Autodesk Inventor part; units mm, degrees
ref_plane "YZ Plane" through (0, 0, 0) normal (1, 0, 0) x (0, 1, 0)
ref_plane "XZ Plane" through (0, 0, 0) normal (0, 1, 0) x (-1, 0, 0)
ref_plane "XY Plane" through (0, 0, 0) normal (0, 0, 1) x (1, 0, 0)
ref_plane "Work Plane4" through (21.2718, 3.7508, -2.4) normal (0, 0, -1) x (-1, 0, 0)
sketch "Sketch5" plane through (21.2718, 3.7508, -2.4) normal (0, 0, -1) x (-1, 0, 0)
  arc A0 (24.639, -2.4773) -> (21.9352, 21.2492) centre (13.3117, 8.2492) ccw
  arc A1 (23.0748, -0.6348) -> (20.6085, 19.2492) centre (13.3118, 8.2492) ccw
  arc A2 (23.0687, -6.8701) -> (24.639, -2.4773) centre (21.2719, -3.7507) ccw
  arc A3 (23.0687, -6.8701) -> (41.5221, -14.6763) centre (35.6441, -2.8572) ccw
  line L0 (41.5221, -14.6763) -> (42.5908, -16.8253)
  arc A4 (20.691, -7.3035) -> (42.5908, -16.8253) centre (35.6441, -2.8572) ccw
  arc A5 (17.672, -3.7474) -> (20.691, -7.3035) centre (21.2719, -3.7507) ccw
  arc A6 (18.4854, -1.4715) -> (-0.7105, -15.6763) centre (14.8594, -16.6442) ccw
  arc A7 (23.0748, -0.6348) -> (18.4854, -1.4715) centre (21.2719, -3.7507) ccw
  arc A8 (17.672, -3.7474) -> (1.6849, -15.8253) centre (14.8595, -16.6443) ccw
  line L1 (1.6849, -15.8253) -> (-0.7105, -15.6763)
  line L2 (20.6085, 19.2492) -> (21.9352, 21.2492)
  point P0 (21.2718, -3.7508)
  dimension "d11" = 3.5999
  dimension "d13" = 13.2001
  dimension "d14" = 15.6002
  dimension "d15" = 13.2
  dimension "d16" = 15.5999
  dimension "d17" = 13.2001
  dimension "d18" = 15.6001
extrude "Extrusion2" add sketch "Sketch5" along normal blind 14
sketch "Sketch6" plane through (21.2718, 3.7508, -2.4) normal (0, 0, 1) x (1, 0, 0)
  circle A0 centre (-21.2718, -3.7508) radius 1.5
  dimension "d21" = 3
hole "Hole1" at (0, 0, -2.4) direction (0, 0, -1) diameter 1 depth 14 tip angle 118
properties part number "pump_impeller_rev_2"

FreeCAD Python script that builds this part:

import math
import FreeCAD as App
import Part
import Sketcher
from FreeCAD import Vector
Q = App.Units.Quantity

doc = App.newDocument("Part")
params = doc.addObject("Spreadsheet::Sheet", "Params")
for row, (alias, value) in enumerate([
    ("sketch1_radius", "3.6 mm"),
    ("sketch1_radius2", "13.2 mm"),
    ("sketch1_radius3", "15.6 mm"),
    ("sketch1_width", "15.57 mm"),
    ("pad1_length", "14 mm"),
    ("sketch2_diameter", "1 mm"),
    ("hole_diameter", "1 mm"),
    ("hole_depth", "14 mm"),
], start=1):
    params.set(f"A{row}", alias)
    params.set(f"B{row}", "=" + value)
    params.setAlias(f"B{row}", alias)

body = doc.addObject("PartDesign::Body", "Body")

# Sketch on XY plane
sketch1 = body.newObject("Sketcher::SketchObject", "Sketch")
sketch1.AttachmentSupport = (doc.getObject("XY_Plane"), [""])
sketch1.MapMode = "FlatFace"
sketch1.AttachmentOffset = App.Placement(Vector(0, 0, -2.4), App.Rotation())
sketch1.addGeometry([
    Part.ArcOfCircle(Part.Circle(Vector(0, 0, 0), Vector(0, 0, 1), 3.6), math.radians(159), math.radians(240)),  # 0
    Part.ArcOfCircle(Part.Circle(Vector(8, 12, 0), Vector(0, 0, 1), 15.6), math.radians(124), math.radians(223)),  # 1
    Part.LineSegment(Vector(-0.7, 25, 0), Vector(0.7, 23, 0)),  # 2
    Part.ArcOfCircle(Part.Circle(Vector(8, 12, 0), Vector(0, 0, 1), 13.2), math.radians(124), math.radians(222)),  # 3
    Part.ArcOfCircle(Part.Circle(Vector(0, 0, 0), Vector(0, 0, 1), 3.6), math.radians(39), math.radians(120)),  # 4
    Part.ArcOfCircle(Part.Circle(Vector(6.4, -12.9, 0), Vector(0, 0, 1), 15.6), math.radians(4), math.radians(103)),  # 5
    Part.LineSegment(Vector(22, -11.9, 0), Vector(19.6, -12.1, 0)),  # 6
    Part.ArcOfCircle(Part.Circle(Vector(6.4, -12.9, 0), Vector(0, 0, 1), 13.2), math.radians(4), math.radians(102)),  # 7
    Part.ArcOfCircle(Part.Circle(Vector(0, 0, 0), Vector(0, 0, 1), 3.6), math.radians(-81), math.radians(0)),  # 8
    Part.ArcOfCircle(Part.Circle(Vector(-14.4, 0.9, 0), Vector(0, 0, 1), 15.6), math.radians(-116), math.radians(-17)),  # 9
    Part.LineSegment(Vector(-21.3, -13.1, 0), Vector(-20.3, -10.9, 0)),  # 10
    Part.ArcOfCircle(Part.Circle(Vector(-14.4, 0.9, 0), Vector(0, 0, 1), 13.2), math.radians(-116), math.radians(-18)),  # 11
], False)
sketch1.addConstraint([
    Sketcher.Constraint("Coincident", 0, 1, 1, 2),
    Sketcher.Constraint("Coincident", 1, 1, 2, 1),
    Sketcher.Constraint("Coincident", 2, 2, 3, 1),
    Sketcher.Constraint("Coincident", 3, 2, 4, 2),
    Sketcher.Constraint("Coincident", 4, 1, 5, 2),
    Sketcher.Constraint("Coincident", 5, 1, 6, 1),
    Sketcher.Constraint("Coincident", 6, 2, 7, 1),
    Sketcher.Constraint("Coincident", 7, 2, 8, 2),
    Sketcher.Constraint("Coincident", 8, 1, 9, 2),
    Sketcher.Constraint("Coincident", 9, 1, 10, 1),
    Sketcher.Constraint("Coincident", 10, 2, 11, 1),
    Sketcher.Constraint("Coincident", 11, 2, 0, 2),
    Sketcher.Constraint("Coincident", 0, 3, -1, 1),
    Sketcher.Constraint("Coincident", 4, 3, -1, 1),
    Sketcher.Constraint("Coincident", 8, 3, -1, 1),
    Sketcher.Constraint("Coincident", 3, 3, 1, 3),
    Sketcher.Constraint("Coincident", 7, 3, 5, 3),
    Sketcher.Constraint("Coincident", 11, 3, 9, 3),
    Sketcher.Constraint("Equal", 0, 4),
    Sketcher.Constraint("Equal", 3, 7),
    Sketcher.Constraint("Equal", 4, 8),
    Sketcher.Constraint("Equal", 5, 9),
    Sketcher.Constraint("Equal", 7, 11),
    Sketcher.Constraint("Equal", 2, 6),
    Sketcher.Constraint("Radius", 0, 3.6),
    Sketcher.Constraint("Radius", 3, 13.2),
    Sketcher.Constraint("Radius", 5, 15.6),
    Sketcher.Constraint("DistanceY", -1, 1, 1, 3, 12.0),
    Sketcher.Constraint("DistanceY", -1, 1, 1, 1, 25.0),
    Sketcher.Constraint("DistanceY", -1, 1, 2, 2, 23.0),
    Sketcher.Constraint("Angle", 6, Q("-176.4406 deg")),
    Sketcher.Constraint("DistanceX", -1, 1, 1, 3, 7.96),
    Sketcher.Constraint("DistanceY", 9, 3, 0, 1, 0.38),
    Sketcher.Constraint("DistanceX", 5, 3, 5, 1, 15.57),
    Sketcher.Constraint("DistanceX", -1, 1, 6, 2, 19.587),
    Sketcher.Constraint("DistanceX", 9, 1, -1, 1, 21.319),
    Sketcher.Constraint("DistanceX", 11, 2, -1, 1, 1.797),
    Sketcher.Constraint("DistanceY", 7, 3, 9, 3, 13.787),
    Sketcher.Constraint("DistanceY", 9, 1, 10, 2, 2.149),
])
sketch1.setExpression("Constraints[24]", "Params.sketch1_radius")
sketch1.setExpression("Constraints[25]", "Params.sketch1_radius2")
sketch1.setExpression("Constraints[26]", "Params.sketch1_radius3")
sketch1.setExpression("Constraints[33]", "Params.sketch1_width")
pad1 = body.newObject("PartDesign::Pad", "Pad")
pad1.Profile = sketch1
pad1.setExpression("Length", "Params.pad1_length")
pad1.Reversed = True

# Sketch on XY plane
sketch2 = body.newObject("Sketcher::SketchObject", "Sketch001")
sketch2.AttachmentSupport = (doc.getObject("XY_Plane"), [""])
sketch2.MapMode = "FlatFace"
sketch2.AttachmentOffset = App.Placement(Vector(0, 0, -2.4), App.Rotation())
sketch2.addGeometry(Part.Circle(Vector(0, 0, 0), Vector(0, 0, 1), 0.5), False)
sketch2.addConstraint([
    Sketcher.Constraint("Coincident", 0, 3, -1, 1),
    Sketcher.Constraint("Diameter", 0, 1.0),
])
sketch2.setExpression("Constraints[1]", "Params.sketch2_diameter")
doc.recompute()
hole = body.newObject("PartDesign::Hole", "Hole")
hole.Profile = sketch2
hole.ThreadType = "None"
hole.setExpression("Diameter", "Params.hole_diameter")
hole.DepthType = "Dimension"
hole.setExpression("Depth", "Params.hole_depth")
hole.DrillPoint = "Angled"
hole.DrillPointAngle = 118

doc.recompute()
